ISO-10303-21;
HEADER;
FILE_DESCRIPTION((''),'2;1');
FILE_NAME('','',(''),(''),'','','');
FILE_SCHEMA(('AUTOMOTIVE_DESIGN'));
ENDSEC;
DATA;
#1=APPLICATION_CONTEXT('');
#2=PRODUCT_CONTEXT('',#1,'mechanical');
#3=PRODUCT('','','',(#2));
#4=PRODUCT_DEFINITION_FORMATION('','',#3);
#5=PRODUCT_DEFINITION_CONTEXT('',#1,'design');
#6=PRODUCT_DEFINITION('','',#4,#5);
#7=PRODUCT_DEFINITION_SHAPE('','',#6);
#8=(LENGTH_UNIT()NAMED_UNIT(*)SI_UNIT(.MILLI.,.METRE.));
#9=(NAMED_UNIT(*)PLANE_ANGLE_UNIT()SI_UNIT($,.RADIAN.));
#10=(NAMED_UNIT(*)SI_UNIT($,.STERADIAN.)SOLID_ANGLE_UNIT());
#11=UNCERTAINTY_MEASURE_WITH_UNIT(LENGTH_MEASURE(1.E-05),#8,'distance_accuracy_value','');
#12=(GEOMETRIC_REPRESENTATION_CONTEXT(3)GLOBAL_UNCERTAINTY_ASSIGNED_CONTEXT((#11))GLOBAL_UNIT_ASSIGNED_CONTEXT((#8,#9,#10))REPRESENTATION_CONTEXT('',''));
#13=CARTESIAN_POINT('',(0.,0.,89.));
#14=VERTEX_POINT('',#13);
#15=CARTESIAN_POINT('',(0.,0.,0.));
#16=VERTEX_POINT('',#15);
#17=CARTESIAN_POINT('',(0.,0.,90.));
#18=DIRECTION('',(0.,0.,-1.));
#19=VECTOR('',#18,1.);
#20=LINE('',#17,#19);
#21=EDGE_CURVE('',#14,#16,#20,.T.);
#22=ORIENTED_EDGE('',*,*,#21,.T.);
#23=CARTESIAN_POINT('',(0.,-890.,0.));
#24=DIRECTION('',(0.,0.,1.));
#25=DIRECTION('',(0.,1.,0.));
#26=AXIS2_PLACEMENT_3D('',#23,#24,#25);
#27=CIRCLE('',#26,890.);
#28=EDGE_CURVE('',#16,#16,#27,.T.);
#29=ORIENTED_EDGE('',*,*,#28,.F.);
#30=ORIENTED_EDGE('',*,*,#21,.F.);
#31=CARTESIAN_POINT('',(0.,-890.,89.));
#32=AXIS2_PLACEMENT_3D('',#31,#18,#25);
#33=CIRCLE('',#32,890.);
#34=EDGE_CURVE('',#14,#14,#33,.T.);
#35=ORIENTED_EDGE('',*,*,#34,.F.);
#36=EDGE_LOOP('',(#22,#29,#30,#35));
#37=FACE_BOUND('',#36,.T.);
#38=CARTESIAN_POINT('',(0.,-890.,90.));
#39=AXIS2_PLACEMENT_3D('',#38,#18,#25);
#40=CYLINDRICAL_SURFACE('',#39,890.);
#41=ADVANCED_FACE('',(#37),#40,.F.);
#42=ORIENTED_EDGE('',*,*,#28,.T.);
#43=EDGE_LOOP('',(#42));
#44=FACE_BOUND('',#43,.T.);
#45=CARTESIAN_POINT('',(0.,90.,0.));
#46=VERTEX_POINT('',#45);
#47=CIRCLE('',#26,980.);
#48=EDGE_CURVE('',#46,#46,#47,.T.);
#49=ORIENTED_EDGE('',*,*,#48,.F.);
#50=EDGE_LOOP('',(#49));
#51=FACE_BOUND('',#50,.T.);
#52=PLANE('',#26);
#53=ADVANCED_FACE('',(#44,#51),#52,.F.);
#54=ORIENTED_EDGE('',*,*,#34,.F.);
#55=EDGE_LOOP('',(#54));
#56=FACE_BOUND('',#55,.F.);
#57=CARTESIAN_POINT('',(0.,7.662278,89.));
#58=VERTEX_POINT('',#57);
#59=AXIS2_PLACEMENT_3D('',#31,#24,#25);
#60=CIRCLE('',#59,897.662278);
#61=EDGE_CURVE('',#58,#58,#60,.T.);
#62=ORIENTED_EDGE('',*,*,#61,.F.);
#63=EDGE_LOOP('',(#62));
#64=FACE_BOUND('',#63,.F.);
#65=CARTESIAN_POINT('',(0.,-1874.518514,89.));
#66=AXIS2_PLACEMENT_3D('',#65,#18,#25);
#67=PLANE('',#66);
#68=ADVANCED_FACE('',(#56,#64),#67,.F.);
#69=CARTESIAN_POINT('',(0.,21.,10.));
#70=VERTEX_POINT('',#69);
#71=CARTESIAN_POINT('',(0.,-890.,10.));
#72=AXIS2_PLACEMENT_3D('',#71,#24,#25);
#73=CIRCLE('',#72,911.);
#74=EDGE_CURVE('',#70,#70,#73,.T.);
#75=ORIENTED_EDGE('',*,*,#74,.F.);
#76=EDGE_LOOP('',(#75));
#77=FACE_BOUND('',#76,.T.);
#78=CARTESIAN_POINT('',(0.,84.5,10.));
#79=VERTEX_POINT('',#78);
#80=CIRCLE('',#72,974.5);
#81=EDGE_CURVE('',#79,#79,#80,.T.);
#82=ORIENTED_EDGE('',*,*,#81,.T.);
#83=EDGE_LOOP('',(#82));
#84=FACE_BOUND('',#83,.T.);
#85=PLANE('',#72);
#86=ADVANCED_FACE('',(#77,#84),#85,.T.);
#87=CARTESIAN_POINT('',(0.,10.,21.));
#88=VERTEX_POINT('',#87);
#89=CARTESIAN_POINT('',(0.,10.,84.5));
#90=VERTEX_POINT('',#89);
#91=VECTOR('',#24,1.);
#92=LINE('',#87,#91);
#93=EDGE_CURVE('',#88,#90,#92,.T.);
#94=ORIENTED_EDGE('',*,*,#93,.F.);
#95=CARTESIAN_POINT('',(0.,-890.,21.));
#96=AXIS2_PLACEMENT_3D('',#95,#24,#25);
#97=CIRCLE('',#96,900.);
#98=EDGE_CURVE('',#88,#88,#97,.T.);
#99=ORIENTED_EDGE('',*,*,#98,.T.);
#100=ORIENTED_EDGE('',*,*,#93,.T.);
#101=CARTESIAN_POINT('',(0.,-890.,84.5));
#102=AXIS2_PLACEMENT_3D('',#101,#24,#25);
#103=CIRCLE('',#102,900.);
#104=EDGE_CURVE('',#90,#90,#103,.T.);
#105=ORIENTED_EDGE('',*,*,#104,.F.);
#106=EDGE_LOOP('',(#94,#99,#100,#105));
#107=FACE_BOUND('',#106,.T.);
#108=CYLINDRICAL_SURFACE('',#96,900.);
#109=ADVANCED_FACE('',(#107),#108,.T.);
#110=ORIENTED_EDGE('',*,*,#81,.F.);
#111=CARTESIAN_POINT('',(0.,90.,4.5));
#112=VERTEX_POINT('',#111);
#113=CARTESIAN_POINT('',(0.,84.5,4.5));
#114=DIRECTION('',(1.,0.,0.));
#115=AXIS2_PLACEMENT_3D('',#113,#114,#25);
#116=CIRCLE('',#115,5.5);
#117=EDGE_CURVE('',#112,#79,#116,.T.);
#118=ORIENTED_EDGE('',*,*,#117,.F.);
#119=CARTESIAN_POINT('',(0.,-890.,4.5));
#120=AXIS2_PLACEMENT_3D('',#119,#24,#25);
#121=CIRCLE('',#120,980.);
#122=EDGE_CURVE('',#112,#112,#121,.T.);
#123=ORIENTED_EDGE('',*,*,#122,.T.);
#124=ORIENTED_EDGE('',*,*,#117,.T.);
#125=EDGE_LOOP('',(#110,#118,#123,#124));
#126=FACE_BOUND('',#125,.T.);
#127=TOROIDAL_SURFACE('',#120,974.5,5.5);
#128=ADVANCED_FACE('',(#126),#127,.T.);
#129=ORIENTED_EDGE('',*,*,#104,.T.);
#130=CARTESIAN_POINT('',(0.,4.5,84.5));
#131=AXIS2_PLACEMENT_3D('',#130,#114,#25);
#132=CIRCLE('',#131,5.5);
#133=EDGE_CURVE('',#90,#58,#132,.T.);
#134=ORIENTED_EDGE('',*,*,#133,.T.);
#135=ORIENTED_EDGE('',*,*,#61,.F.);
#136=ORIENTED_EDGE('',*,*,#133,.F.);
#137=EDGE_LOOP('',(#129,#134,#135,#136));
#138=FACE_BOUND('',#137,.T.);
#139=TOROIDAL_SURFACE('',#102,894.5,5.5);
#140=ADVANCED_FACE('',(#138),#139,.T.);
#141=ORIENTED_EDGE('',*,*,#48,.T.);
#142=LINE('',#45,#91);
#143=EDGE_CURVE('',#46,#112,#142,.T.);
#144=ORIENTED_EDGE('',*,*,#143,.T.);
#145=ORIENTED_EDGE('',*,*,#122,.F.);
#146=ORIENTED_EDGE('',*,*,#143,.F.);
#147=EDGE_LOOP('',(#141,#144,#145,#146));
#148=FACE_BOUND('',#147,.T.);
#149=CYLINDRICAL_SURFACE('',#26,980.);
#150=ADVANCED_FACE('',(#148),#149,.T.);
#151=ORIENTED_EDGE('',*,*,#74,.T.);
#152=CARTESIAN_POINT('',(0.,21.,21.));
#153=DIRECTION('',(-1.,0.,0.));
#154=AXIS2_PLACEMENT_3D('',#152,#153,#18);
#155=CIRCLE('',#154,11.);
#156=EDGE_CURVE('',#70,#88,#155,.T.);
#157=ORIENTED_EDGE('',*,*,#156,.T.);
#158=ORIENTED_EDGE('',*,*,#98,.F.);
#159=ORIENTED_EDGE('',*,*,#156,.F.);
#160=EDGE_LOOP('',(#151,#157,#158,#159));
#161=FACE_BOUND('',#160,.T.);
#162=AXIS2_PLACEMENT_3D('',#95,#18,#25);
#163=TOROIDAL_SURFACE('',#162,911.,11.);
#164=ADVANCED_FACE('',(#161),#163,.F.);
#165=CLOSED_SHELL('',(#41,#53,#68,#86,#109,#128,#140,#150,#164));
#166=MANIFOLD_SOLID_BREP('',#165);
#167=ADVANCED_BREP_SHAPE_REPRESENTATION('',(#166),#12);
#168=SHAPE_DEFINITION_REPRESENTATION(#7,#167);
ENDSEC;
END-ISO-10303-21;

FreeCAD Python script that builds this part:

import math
import FreeCAD as App
import Part
import Sketcher
from FreeCAD import Vector
Q = App.Units.Quantity


def add_polygon(sketch, points):
    """Adds a closed chain of lines whose ends are joined by coincident constraints."""
    first, n = sketch.GeometryCount, len(points)
    for a, b in zip(points, points[1:] + points[:1]):
        sketch.addGeometry(Part.LineSegment(App.Vector(*a, 0), App.Vector(*b, 0)), False)
    for i in range(n):
        sketch.addConstraint(Sketcher.Constraint("Coincident", first + i, 2, first + (i + 1) % n, 1))

doc = App.newDocument("Part")
body = doc.addObject("PartDesign::Body", "Body")

# Sketch on YZ plane
sketch1 = body.newObject("Sketcher::SketchObject", "Sketch")
sketch1.AttachmentSupport = (doc.getObject("YZ_Plane"), [""])
sketch1.MapMode = "FlatFace"
sketch1.addGeometry([
    Part.LineSegment(Vector(4.5, 90, 0), Vector(0, 90, 0)),  # 0
    Part.LineSegment(Vector(0, 90, 0), Vector(0, 0, 0)),  # 1
    Part.LineSegment(Vector(0, 0, 0), Vector(90, 0, 0)),  # 2
    Part.LineSegment(Vector(90, 0, 0), Vector(90, 4.5, 0)),  # 3
    Part.ArcOfCircle(Part.Circle(Vector(84.5, 4.5, 0), Vector(0, 0, 1), 5.5), math.radians(0), math.radians(90)),  # 4
    Part.LineSegment(Vector(84.5, 10, 0), Vector(21, 10, 0)),  # 5
    Part.ArcOfCircle(Part.Circle(Vector(21, 21, 0), Vector(0, 0, 1), 11), math.radians(180), math.radians(270)),  # 6
    Part.LineSegment(Vector(10, 21, 0), Vector(10, 84.5, 0)),  # 7
    Part.ArcOfCircle(Part.Circle(Vector(4.5, 84.5, 0), Vector(0, 0, 1), 5.5), math.radians(0), math.radians(90)),  # 8
], False)
sketch1.addGeometry(Part.LineSegment(Vector(-890, 0, 0), Vector(-890, 90, 0)), True)  # axis
sketch1.addConstraint([
    Sketcher.Constraint("Coincident", 0, 2, 1, 1),
    Sketcher.Constraint("Coincident", 1, 2, 2, 1),
    Sketcher.Constraint("Coincident", 2, 2, 3, 1),
    Sketcher.Constraint("Tangent", 3, 2, 4, 1),
    Sketcher.Constraint("Tangent", 4, 2, 5, 1),
    Sketcher.Constraint("Tangent", 5, 2, 6, 2),
    Sketcher.Constraint("Tangent", 6, 1, 7, 1),
    Sketcher.Constraint("Tangent", 7, 2, 8, 1),
    Sketcher.Constraint("Tangent", 8, 2, 0, 1),
    Sketcher.Constraint("Horizontal", 0),
    Sketcher.Constraint("Vertical", 1),
    Sketcher.Constraint("Horizontal", 2),
    Sketcher.Constraint("Vertical", 3),
    Sketcher.Constraint("Horizontal", 5),
    Sketcher.Constraint("Vertical", 7),
    Sketcher.Constraint("Vertical", 9),
    Sketcher.Constraint("Coincident", 1, 2, -1, 1),
    Sketcher.Constraint("Equal", 4, 8),
    Sketcher.Constraint("PointOnObject", 9, 1, -1),
    Sketcher.Constraint("Horizontal", 8, 2, 9, 2),
    Sketcher.Constraint("Equal", 2, 1),
    Sketcher.Constraint("Equal", 0, 3),
    Sketcher.Constraint("Radius", 6, Q("11 mm")),
    Sketcher.Constraint("Radius", 4, Q("5.5 mm")),
    Sketcher.Constraint("DistanceX", 2, 1, 2, 2, Q("90 mm")),
    Sketcher.Constraint("DistanceX", 0, 2, 0, 1, Q("4.5 mm")),
    Sketcher.Constraint("DistanceX", 9, 1, -1, 1, Q("890 mm")),
])
revolution = body.newObject("PartDesign::Revolution", "Revolution")
revolution.Profile = sketch1
revolution.ReferenceAxis = (sketch1, ["Axis0"])
revolution.Angle = 360

# Sketch on YZ plane
sketch2 = body.newObject("Sketcher::SketchObject", "Sketch001")
sketch2.AttachmentSupport = (doc.getObject("YZ_Plane"), [""])
sketch2.MapMode = "FlatFace"
add_polygon(sketch2, [(-1874.518514, 116.218187), (-1874.518514, 89), (79.247656, 89), (79.247656, 116.218187)])  # lines 0-3
sketch2.addConstraint([
    Sketcher.Constraint("Vertical", 0),
    Sketcher.Constraint("Horizontal", 1),
    Sketcher.Constraint("Vertical", 2),
    Sketcher.Constraint("Horizontal", 3),
    Sketcher.Constraint("DistanceY", -1, 1, 0, 2, Q("89 mm")),
    Sketcher.Constraint("DistanceX", 1, 1, 1, 2, Q("1953.76617 mm")),
    Sketcher.Constraint("DistanceY", 0, 2, 0, 1, Q("27.218187 mm")),
    Sketcher.Constraint("DistanceX", 0, 2, -1, 1, Q("1874.518514 mm")),
])
pocket1 = body.newObject("PartDesign::Pocket", "Pocket")
pocket1.Profile = sketch2
pocket1.Length = 1800
pocket1.Midplane = True

doc.recompute()
